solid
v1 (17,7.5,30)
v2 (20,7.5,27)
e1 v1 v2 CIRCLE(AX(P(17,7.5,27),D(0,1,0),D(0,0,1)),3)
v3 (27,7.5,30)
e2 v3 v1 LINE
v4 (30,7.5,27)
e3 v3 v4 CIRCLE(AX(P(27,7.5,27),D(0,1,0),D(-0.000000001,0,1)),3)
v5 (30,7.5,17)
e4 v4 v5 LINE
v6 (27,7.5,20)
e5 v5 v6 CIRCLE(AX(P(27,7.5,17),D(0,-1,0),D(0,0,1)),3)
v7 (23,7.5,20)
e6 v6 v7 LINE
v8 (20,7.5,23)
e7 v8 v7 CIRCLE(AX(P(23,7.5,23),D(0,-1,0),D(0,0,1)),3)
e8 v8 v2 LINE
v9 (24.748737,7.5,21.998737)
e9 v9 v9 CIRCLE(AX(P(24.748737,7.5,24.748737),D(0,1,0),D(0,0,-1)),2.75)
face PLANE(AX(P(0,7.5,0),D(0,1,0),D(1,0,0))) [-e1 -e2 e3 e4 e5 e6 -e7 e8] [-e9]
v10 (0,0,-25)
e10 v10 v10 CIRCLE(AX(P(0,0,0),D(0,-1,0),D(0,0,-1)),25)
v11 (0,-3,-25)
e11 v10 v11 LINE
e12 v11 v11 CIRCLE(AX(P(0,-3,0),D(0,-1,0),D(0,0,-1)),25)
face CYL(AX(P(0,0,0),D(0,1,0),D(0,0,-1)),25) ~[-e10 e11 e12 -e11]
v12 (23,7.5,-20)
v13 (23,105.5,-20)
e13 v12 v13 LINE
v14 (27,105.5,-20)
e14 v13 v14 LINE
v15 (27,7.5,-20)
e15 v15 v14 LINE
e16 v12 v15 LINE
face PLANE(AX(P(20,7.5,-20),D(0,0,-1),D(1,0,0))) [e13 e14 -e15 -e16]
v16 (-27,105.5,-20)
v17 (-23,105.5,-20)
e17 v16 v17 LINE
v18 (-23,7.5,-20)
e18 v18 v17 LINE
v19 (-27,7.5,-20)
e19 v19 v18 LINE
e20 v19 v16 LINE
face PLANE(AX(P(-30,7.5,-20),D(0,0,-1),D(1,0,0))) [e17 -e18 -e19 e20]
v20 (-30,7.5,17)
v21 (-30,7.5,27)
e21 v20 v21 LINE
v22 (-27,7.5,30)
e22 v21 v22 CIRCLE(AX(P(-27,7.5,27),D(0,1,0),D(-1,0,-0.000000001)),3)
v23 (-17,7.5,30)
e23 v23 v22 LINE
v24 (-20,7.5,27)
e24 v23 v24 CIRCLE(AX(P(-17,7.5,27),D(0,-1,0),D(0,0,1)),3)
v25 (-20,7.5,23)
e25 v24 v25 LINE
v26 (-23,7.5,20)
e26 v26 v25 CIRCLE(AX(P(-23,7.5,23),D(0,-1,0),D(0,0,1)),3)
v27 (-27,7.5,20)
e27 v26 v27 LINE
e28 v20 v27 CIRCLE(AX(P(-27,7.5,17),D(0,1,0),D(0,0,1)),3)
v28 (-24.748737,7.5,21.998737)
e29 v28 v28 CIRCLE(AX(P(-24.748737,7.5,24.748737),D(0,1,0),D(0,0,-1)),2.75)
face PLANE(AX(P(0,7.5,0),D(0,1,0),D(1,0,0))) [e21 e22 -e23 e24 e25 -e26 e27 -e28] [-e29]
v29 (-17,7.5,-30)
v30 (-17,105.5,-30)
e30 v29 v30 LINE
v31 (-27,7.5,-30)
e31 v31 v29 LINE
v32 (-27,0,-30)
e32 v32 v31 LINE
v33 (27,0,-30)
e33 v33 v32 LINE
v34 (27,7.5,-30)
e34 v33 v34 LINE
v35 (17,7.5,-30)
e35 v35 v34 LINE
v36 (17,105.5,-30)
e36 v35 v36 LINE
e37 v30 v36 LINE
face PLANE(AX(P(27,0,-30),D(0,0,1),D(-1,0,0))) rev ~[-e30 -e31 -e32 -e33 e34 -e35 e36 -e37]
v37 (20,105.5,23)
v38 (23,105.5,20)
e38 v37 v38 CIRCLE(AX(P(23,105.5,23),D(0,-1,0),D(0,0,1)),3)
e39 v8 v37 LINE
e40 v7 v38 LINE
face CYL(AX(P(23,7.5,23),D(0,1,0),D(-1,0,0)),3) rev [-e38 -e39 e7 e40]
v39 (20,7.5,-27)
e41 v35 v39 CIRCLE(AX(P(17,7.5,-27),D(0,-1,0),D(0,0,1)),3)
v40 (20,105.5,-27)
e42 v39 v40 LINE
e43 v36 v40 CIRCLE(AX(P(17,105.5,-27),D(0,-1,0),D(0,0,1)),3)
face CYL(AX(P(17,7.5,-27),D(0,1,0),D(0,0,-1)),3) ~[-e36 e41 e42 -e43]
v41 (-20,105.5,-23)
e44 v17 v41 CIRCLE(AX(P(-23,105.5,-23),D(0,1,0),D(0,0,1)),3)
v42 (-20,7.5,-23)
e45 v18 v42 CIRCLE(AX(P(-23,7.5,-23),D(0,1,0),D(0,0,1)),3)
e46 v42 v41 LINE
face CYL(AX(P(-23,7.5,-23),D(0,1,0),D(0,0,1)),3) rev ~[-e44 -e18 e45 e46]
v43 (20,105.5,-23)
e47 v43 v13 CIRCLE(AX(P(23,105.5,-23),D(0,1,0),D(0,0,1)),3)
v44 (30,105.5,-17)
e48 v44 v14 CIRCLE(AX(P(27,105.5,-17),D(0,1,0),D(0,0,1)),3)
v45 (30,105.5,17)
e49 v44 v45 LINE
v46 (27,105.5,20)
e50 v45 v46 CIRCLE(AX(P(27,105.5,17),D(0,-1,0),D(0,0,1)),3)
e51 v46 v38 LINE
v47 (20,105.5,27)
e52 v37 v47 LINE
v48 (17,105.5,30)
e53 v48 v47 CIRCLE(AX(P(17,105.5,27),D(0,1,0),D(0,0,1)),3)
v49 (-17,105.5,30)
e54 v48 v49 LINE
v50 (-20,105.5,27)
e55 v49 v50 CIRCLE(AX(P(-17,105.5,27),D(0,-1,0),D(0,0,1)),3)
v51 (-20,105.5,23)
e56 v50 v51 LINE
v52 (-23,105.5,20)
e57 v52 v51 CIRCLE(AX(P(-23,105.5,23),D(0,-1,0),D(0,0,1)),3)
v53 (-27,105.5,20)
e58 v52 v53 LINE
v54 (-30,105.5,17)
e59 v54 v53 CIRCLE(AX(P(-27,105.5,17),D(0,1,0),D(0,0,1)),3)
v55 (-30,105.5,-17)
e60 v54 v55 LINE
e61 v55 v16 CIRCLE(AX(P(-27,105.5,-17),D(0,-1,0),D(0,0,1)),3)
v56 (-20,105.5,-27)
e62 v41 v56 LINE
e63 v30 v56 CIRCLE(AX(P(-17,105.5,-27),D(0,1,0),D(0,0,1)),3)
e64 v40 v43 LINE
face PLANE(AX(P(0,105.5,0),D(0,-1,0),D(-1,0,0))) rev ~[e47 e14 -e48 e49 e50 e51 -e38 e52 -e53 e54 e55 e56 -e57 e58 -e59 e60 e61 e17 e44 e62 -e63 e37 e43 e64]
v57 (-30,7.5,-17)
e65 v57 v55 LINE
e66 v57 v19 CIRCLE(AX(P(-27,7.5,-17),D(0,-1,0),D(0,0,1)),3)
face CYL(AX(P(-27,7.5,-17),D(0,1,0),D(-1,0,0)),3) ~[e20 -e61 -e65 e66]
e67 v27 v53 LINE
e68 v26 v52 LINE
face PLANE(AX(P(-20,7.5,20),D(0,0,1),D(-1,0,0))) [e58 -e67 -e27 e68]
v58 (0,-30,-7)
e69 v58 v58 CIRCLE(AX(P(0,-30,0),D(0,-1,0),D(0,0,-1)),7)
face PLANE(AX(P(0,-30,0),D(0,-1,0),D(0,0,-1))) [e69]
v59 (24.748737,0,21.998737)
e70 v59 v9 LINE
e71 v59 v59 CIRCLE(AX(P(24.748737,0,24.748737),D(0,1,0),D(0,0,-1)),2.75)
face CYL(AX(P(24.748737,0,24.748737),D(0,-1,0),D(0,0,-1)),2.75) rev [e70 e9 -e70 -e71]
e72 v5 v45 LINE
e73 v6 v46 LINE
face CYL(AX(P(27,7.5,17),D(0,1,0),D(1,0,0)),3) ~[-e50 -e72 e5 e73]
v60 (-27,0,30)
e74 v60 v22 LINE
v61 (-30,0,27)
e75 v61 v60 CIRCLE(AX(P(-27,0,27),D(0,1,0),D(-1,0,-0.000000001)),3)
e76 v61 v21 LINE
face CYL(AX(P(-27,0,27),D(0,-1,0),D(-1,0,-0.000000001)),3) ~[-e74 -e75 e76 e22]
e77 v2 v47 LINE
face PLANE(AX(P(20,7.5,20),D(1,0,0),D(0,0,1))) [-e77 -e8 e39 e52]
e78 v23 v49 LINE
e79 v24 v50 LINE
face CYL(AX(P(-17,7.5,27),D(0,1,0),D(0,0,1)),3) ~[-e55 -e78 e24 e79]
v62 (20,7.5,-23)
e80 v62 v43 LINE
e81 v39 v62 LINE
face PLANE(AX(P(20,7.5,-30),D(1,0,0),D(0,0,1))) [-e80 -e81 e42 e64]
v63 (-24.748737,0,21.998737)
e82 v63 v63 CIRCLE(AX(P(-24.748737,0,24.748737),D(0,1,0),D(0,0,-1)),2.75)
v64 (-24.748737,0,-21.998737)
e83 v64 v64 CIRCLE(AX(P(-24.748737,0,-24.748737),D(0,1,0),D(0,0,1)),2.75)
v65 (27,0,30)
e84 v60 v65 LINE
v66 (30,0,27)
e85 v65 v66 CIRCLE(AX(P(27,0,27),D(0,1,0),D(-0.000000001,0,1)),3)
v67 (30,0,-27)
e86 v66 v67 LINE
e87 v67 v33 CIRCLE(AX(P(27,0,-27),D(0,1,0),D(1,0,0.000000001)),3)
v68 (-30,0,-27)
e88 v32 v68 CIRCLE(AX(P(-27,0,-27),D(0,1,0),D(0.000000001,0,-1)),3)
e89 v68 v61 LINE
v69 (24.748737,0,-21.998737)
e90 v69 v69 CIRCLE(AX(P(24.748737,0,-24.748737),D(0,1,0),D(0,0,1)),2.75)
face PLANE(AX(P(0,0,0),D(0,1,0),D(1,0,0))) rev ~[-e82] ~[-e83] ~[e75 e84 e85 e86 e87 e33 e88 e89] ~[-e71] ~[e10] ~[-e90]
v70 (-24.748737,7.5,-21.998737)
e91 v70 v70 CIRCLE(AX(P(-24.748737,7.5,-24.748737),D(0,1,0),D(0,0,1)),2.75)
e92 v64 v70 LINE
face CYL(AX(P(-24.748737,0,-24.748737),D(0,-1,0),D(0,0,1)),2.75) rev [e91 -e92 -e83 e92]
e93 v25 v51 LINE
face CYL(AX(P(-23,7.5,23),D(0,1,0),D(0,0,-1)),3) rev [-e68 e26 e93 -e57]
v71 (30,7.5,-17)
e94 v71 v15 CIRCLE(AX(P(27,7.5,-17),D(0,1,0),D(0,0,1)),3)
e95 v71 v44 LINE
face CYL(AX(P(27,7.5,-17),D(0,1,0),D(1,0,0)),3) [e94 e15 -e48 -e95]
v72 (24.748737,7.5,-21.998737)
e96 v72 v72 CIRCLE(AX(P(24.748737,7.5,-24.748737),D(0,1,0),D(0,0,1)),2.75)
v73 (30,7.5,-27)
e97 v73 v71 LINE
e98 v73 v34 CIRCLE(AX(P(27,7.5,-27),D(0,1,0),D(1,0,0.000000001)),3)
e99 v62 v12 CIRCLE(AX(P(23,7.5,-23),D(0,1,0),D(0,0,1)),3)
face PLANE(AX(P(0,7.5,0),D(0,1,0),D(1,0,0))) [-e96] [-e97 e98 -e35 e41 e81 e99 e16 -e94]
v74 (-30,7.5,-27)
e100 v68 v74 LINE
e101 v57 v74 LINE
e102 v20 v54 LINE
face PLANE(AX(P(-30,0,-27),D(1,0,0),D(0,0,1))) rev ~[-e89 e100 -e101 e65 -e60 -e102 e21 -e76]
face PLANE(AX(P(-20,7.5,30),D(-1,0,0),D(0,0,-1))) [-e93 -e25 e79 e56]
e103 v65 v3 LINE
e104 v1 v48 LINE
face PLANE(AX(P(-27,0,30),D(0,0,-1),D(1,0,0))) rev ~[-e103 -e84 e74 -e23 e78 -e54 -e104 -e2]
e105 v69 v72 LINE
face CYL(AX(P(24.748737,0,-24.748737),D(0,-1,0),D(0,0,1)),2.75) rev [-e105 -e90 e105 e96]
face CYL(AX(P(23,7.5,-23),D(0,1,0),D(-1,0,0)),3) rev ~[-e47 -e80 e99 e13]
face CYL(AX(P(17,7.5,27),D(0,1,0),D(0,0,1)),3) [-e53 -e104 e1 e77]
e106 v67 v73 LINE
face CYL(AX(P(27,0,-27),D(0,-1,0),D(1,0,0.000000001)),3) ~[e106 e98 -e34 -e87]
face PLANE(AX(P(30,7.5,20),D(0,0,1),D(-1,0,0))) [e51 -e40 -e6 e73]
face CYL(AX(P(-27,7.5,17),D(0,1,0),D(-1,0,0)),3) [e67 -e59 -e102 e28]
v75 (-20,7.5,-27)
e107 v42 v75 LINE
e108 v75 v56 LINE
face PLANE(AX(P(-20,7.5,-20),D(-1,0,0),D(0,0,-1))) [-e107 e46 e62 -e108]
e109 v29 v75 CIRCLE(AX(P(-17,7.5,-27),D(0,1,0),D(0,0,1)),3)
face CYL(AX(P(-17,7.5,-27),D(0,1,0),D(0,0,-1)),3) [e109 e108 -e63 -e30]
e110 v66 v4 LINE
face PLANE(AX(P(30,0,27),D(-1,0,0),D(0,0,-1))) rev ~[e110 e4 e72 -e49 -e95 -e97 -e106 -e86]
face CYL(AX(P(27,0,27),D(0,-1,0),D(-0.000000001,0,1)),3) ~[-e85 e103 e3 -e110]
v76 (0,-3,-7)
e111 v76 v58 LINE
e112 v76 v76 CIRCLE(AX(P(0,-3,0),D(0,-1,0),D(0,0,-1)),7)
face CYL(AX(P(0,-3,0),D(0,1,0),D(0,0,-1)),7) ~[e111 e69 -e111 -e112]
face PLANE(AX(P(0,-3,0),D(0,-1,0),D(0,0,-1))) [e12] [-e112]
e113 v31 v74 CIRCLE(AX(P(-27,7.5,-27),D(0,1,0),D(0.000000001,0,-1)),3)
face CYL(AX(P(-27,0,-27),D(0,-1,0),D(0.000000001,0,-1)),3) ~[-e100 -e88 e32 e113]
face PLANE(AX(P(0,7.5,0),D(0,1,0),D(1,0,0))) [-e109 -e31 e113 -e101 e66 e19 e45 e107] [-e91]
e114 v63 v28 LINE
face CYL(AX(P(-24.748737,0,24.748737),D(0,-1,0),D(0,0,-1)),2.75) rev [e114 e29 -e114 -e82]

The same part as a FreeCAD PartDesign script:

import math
import FreeCAD as App
import Part
import Sketcher
from FreeCAD import Vector


def edges_at(feature, points):
    """Names of the edges that pass closest to the given points."""
    edges = feature.Shape.Edges
    near = lambda p: min(range(len(edges)), key=lambda i: edges[i].distToShape(Part.Vertex(*p))[0])
    return sorted({f"Edge{near(p) + 1}" for p in points})

doc = App.newDocument("Part")
body = doc.addObject("PartDesign::Body", "Body")

# Sketch on XZ plane
sketch1 = body.newObject("Sketcher::SketchObject", "Sketch")
sketch1.AttachmentSupport = (doc.getObject("XZ_Plane"), [""])
sketch1.MapMode = "FlatFace"
sketch1.addGeometry(Part.LineSegment(Vector(-27, 30, 0), Vector(27, 30, 0)), False)
sketch1.addGeometry(Part.ArcOfCircle(Part.Circle(Vector(27, 27, 0), Vector(0, 0, 1), 3), math.radians(0), math.radians(90)), False)
sketch1.addGeometry(Part.LineSegment(Vector(30, 27, 0), Vector(30, -27, 0)), False)
sketch1.addGeometry(Part.ArcOfCircle(Part.Circle(Vector(27, -27, 0), Vector(0, 0, 1), 3), math.radians(-90), math.radians(0)), False)
sketch1.addGeometry(Part.LineSegment(Vector(27, -30, 0), Vector(-27, -30, 0)), False)
sketch1.addGeometry(Part.ArcOfCircle(Part.Circle(Vector(-27, -27, 0), Vector(0, 0, 1), 3), math.radians(180), math.radians(270)), False)
sketch1.addGeometry(Part.LineSegment(Vector(-30, -27, 0), Vector(-30, 27, 0)), False)
sketch1.addGeometry(Part.ArcOfCircle(Part.Circle(Vector(-27, 27, 0), Vector(0, 0, 1), 3), math.radians(90), math.radians(180)), False)
sketch1.addGeometry(Part.Circle(Vector(-24.7, 24.7, 0), Vector(0, 0, 1), 2.8), False)
sketch1.addGeometry(Part.Circle(Vector(24.7, 24.7, 0), Vector(0, 0, 1), 2.8), False)
sketch1.addGeometry(Part.Circle(Vector(-24.7, -24.7, 0), Vector(0, 0, 1), 2.8), False)
sketch1.addGeometry(Part.Circle(Vector(24.7, -24.7, 0), Vector(0, 0, 1), 2.8), False)
sketch1.addConstraint(Sketcher.Constraint("Tangent", 0, 2, 1, 2))
sketch1.addConstraint(Sketcher.Constraint("Tangent", 1, 1, 2, 1))
sketch1.addConstraint(Sketcher.Constraint("Tangent", 2, 2, 3, 2))
sketch1.addConstraint(Sketcher.Constraint("Tangent", 3, 1, 4, 1))
sketch1.addConstraint(Sketcher.Constraint("Tangent", 4, 2, 5, 2))
sketch1.addConstraint(Sketcher.Constraint("Tangent", 5, 1, 6, 1))
sketch1.addConstraint(Sketcher.Constraint("Tangent", 6, 2, 7, 2))
sketch1.addConstraint(Sketcher.Constraint("Tangent", 7, 1, 0, 1))
sketch1.addConstraint(Sketcher.Constraint("Horizontal", 0))
sketch1.addConstraint(Sketcher.Constraint("Vertical", 2))
sketch1.addConstraint(Sketcher.Constraint("Horizontal", 4))
sketch1.addConstraint(Sketcher.Constraint("Vertical", 6))
sketch1.addConstraint(Sketcher.Constraint("Equal", 1, 3))
sketch1.addConstraint(Sketcher.Constraint("Equal", 3, 5))
sketch1.addConstraint(Sketcher.Constraint("Equal", 5, 7))
sketch1.addConstraint(Sketcher.Constraint("Equal", 8, 9))
sketch1.addConstraint(Sketcher.Constraint("Equal", 9, 10))
sketch1.addConstraint(Sketcher.Constraint("Equal", 10, 11))
sketch1.addConstraint(Sketcher.Constraint("Symmetric", 1, 3, 5, 3, -1, 1))
sketch1.addConstraint(Sketcher.Constraint("Symmetric", 9, 3, 10, 3, -1, 1))
sketch1.addConstraint(Sketcher.Constraint("Symmetric", 8, 3, 11, 3, -1, 1))
sketch1.addConstraint(Sketcher.Constraint("Symmetric", 8, 3, 9, 3, -2))
sketch1.addConstraint(Sketcher.Constraint("Equal", 4, 2))
sketch1.addConstraint(Sketcher.Constraint("Radius", 1, 3.0))
sketch1.addConstraint(Sketcher.Constraint("Diameter", 8, 5.5))
sketch1.addConstraint(Sketcher.Constraint("DistanceX", 0, 1, 0, 2, 54.0))
sketch1.addConstraint(Sketcher.Constraint("DistanceX", 8, 3, -1, 1, 24.748737))
sketch1.addConstraint(Sketcher.Constraint("DistanceY", -1, 1, 8, 3, 24.748737))
pad1 = body.newObject("PartDesign::Pad", "Pad")
pad1.Profile = sketch1
pad1.Length = 7.5
pad1.Reversed = True

# Sketch on XZ plane
sketch2 = body.newObject("Sketcher::SketchObject", "Sketch001")
sketch2.AttachmentSupport = (doc.getObject("XZ_Plane"), [""])
sketch2.MapMode = "FlatFace"
sketch2.AttachmentOffset = App.Placement(Vector(0, 0, -7.5), App.Rotation())
sketch2.addGeometry(Part.LineSegment(Vector(20, -30, 0), Vector(-20, -30, 0)), False)
sketch2.addGeometry(Part.LineSegment(Vector(-20, -30, 0), Vector(-20, -20, 0)), False)
sketch2.addGeometry(Part.LineSegment(Vector(-20, -20, 0), Vector(-30, -20, 0)), False)
sketch2.addGeometry(Part.LineSegment(Vector(-30, -20, 0), Vector(-30, 20, 0)), False)
sketch2.addGeometry(Part.LineSegment(Vector(-30, 20, 0), Vector(-20, 20, 0)), False)
sketch2.addGeometry(Part.LineSegment(Vector(-20, 20, 0), Vector(-20, 30, 0)), False)
sketch2.addGeometry(Part.LineSegment(Vector(-20, 30, 0), Vector(20, 30, 0)), False)
sketch2.addGeometry(Part.LineSegment(Vector(20, 30, 0), Vector(20, 20, 0)), False)
sketch2.addGeometry(Part.LineSegment(Vector(20, 20, 0), Vector(30, 20, 0)), False)
sketch2.addGeometry(Part.LineSegment(Vector(30, 20, 0), Vector(30, -20, 0)), False)
sketch2.addGeometry(Part.LineSegment(Vector(30, -20, 0), Vector(20, -20, 0)), False)
sketch2.addGeometry(Part.LineSegment(Vector(20, -20, 0), Vector(20, -30, 0)), False)
sketch2.addConstraint(Sketcher.Constraint("Coincident", 0, 2, 1, 1))
sketch2.addConstraint(Sketcher.Constraint("Coincident", 1, 2, 2, 1))
sketch2.addConstraint(Sketcher.Constraint("Coincident", 2, 2, 3, 1))
sketch2.addConstraint(Sketcher.Constraint("Coincident", 3, 2, 4, 1))
sketch2.addConstraint(Sketcher.Constraint("Coincident", 4, 2, 5, 1))
sketch2.addConstraint(Sketcher.Constraint("Coincident", 5, 2, 6, 1))
sketch2.addConstraint(Sketcher.Constraint("Coincident", 6, 2, 7, 1))
sketch2.addConstraint(Sketcher.Constraint("Coincident", 7, 2, 8, 1))
sketch2.addConstraint(Sketcher.Constraint("Coincident", 8, 2, 9, 1))
sketch2.addConstraint(Sketcher.Constraint("Coincident", 9, 2, 10, 1))
sketch2.addConstraint(Sketcher.Constraint("Coincident", 10, 2, 11, 1))
sketch2.addConstraint(Sketcher.Constraint("Coincident", 11, 2, 0, 1))
sketch2.addConstraint(Sketcher.Constraint("Horizontal", 0))
sketch2.addConstraint(Sketcher.Constraint("Vertical", 1))
sketch2.addConstraint(Sketcher.Constraint("Horizontal", 2))
sketch2.addConstraint(Sketcher.Constraint("Vertical", 3))
sketch2.addConstraint(Sketcher.Constraint("Horizontal", 4))
sketch2.addConstraint(Sketcher.Constraint("Vertical", 5))
sketch2.addConstraint(Sketcher.Constraint("Horizontal", 6))
sketch2.addConstraint(Sketcher.Constraint("Vertical", 7))
sketch2.addConstraint(Sketcher.Constraint("Horizontal", 8))
sketch2.addConstraint(Sketcher.Constraint("Vertical", 9))
sketch2.addConstraint(Sketcher.Constraint("Horizontal", 10))
sketch2.addConstraint(Sketcher.Constraint("Vertical", 11))
sketch2.addConstraint(Sketcher.Constraint("Symmetric", 0, 2, 6, 2, -1, 1))
sketch2.addConstraint(Sketcher.Constraint("Symmetric", 2, 2, 8, 2, -1, 1))
sketch2.addConstraint(Sketcher.Constraint("Symmetric", 4, 2, 10, 2, -1, 1))
sketch2.addConstraint(Sketcher.Constraint("Symmetric", 4, 2, 7, 2, -2))
sketch2.addConstraint(Sketcher.Constraint("Equal", 10, 1))
sketch2.addConstraint(Sketcher.Constraint("Equal", 6, 3))
sketch2.addConstraint(Sketcher.Constraint("DistanceX", 0, 2, 0, 1, 40.0))
sketch2.addConstraint(Sketcher.Constraint("DistanceX", 2, 2, 2, 1, 10.0))
pad2 = body.newObject("PartDesign::Pad", "Pad001")
pad2.Profile = sketch2
pad2.Length = 98
pad2.Reversed = True
doc.recompute()

fillet = body.newObject("PartDesign::Fillet", "Fillet")
fillet.Base = (pad2, edges_at(pad2, [
    (-20, 56.5, -30),
    (-20, 56.5, -20),
    (-30, 56.5, -20),
    (-30, 56.5, 20),
    (-20, 56.5, 20),
    (-20, 56.5, 30),
    (20, 56.5, 30),
    (20, 56.5, 20),
    (30, 56.5, 20),
    (30, 56.5, -20),
    (20, 56.5, -20),
    (20, 56.5, -30),
]))
fillet.Radius = 3

# Sketch on XZ plane
sketch3 = body.newObject("Sketcher::SketchObject", "Sketch002")
sketch3.AttachmentSupport = (doc.getObject("XZ_Plane"), [""])
sketch3.MapMode = "FlatFace"
sketch3.addGeometry(Part.Circle(Vector(0, 0, 0), Vector(0, 0, 1), 25), False)
sketch3.addConstraint(Sketcher.Constraint("Coincident", 0, 3, -1, 1))
sketch3.addConstraint(Sketcher.Constraint("Diameter", 0, 50.0))
pad3 = body.newObject("PartDesign::Pad", "Pad002")
pad3.Profile = sketch3
pad3.Length = 3

# Sketch on XZ plane
sketch4 = body.newObject("Sketcher::SketchObject", "Sketch003")
sketch4.AttachmentSupport = (doc.getObject("XZ_Plane"), [""])
sketch4.MapMode = "FlatFace"
sketch4.AttachmentOffset = App.Placement(Vector(0, 0, 3), App.Rotation())
sketch4.addGeometry(Part.Circle(Vector(0, 0, 0), Vector(0, 0, 1), 7), False)
sketch4.addConstraint(Sketcher.Constraint("Coincident", 0, 3, -1, 1))
sketch4.addConstraint(Sketcher.Constraint("Diameter", 0, 14.0))
pad4 = body.newObject("PartDesign::Pad", "Pad003")
pad4.Profile = sketch4
pad4.Length = 27

doc.recompute()
